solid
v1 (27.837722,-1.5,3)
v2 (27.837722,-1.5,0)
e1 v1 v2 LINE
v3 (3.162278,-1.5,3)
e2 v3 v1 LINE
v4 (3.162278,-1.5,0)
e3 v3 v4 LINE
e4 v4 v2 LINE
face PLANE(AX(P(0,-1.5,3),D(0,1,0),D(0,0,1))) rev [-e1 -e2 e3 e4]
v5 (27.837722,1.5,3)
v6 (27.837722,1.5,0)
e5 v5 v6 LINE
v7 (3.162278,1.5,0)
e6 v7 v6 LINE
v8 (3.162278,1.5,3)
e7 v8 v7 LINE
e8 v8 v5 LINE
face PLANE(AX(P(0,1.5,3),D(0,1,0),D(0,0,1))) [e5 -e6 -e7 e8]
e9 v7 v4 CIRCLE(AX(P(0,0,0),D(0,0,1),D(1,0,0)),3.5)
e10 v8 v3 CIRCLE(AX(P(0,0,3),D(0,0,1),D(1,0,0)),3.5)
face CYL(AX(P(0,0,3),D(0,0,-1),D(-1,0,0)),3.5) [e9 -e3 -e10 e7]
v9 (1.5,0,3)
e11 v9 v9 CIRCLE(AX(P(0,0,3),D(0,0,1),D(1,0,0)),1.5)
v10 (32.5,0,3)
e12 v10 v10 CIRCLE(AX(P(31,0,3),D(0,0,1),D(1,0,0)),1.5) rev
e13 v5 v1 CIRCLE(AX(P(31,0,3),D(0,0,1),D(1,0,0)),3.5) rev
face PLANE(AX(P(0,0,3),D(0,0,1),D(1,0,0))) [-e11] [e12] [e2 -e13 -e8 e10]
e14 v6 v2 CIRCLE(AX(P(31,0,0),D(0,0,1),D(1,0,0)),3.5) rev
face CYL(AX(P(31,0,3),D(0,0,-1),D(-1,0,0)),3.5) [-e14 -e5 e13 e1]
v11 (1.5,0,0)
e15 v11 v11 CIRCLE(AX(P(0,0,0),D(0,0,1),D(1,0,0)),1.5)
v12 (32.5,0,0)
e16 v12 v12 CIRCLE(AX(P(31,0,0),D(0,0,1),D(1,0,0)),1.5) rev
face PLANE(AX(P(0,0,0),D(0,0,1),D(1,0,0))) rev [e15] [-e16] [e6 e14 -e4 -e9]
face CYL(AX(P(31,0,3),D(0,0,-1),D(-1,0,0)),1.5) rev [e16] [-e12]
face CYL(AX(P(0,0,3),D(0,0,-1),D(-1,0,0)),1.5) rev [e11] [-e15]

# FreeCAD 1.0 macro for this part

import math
import FreeCAD as App
import Part
import Sketcher

V = App.Vector

doc = App.newDocument("Part")
body = doc.addObject("PartDesign::Body", "Body")

sketch1 = body.newObject("Sketcher::SketchObject", "Sketch")
sketch1.AttachmentSupport = (doc.getObject("XY_Plane"), [""])
sketch1.MapMode = "FlatFace"
sketch1.addGeometry([
    Part.ArcOfCircle(Part.Circle(V(0, 0, 0), V(0, 0, 1), 3.5), math.radians(25), math.radians(335)),
    Part.LineSegment(V(3.2, -1.5, 0), V(27.8, -1.5, 0)),
    Part.ArcOfCircle(Part.Circle(V(31, 0, 0), V(0, 0, 1), 3.5), math.radians(-155), math.radians(0)),
    Part.ArcOfCircle(Part.Circle(V(31, 0, 0), V(0, 0, 1), 3.5), math.radians(0), math.radians(155)),
    Part.LineSegment(V(27.8, 1.5, 0), V(3.2, 1.5, 0)),
    Part.Circle(V(0, 0, 0), V(0, 0, 1), 1.5),
    Part.Circle(V(31, 0, 0), V(0, 0, 1), 1.5),
], False)
sketch1.addConstraint([
    Sketcher.Constraint("Coincident", 0, 2, 1, 1),
    Sketcher.Constraint("Coincident", 1, 2, 2, 1),
    Sketcher.Constraint("Tangent", 2, 2, 3, 1),
    Sketcher.Constraint("Coincident", 3, 2, 4, 1),
    Sketcher.Constraint("Coincident", 4, 2, 0, 1),
    Sketcher.Constraint("Horizontal", 1),
    Sketcher.Constraint("Horizontal", 4),
    Sketcher.Constraint("Coincident", 0, 3, -1, 1),
    Sketcher.Constraint("Coincident", 5, 3, -1, 1),
    Sketcher.Constraint("Coincident", 6, 3, 2, 3),
    Sketcher.Constraint("Equal", 0, 2),
    Sketcher.Constraint("Equal", 2, 3),
    Sketcher.Constraint("Equal", 5, 6),
    Sketcher.Constraint("Symmetric", 1, 2, 3, 2, -1),
    Sketcher.Constraint("PointOnObject", 2, 2, -1),
    Sketcher.Constraint("Diameter", 5, 3.0),
    Sketcher.Constraint("Radius", 0, 3.5),
    Sketcher.Constraint("DistanceX", -1, 1, 2, 3, 31.0),
    Sketcher.Constraint("DistanceY", 1, 2, 3, 2, 3.0),
])
pad1 = body.newObject("PartDesign::Pad", "Pad")
pad1.Profile = sketch1
pad1.Length = 3

doc.recompute()
